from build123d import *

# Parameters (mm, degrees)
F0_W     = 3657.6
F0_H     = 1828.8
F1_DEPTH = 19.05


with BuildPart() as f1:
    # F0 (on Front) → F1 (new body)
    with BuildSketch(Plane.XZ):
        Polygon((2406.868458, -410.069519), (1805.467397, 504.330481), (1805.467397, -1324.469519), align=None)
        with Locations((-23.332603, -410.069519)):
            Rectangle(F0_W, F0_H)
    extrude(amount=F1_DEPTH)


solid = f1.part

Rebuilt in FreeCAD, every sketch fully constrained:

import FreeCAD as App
import Part
import Sketcher
Q = App.Units.Quantity

doc = App.newDocument("Part")
body = doc.addObject("PartDesign::Body", "Body")

sketch1 = doc.addObject("Sketcher::SketchObject", "Sketch")
body.addObject(sketch1)
sketch1.AttachmentSupport = (doc.XZ_Plane, [""])
sketch1.MapMode = "FlatFace"
sketch1.addGeometry(Part.LineSegment(App.Vector(2407, -410, 0), App.Vector(1805, 504, 0)), False)
sketch1.addGeometry(Part.LineSegment(App.Vector(1805, 504, 0), App.Vector(-1852, 504, 0)), False)
sketch1.addGeometry(Part.LineSegment(App.Vector(-1852, 504, 0), App.Vector(-1852, -1324, 0)), False)
sketch1.addGeometry(Part.LineSegment(App.Vector(-1852, -1324, 0), App.Vector(1805, -1324, 0)), False)
sketch1.addGeometry(Part.LineSegment(App.Vector(1805, -1324, 0), App.Vector(2407, -410, 0)), False)
sketch1.addConstraint(Sketcher.Constraint("Coincident", 0, 2, 1, 1))
sketch1.addConstraint(Sketcher.Constraint("Coincident", 1, 2, 2, 1))
sketch1.addConstraint(Sketcher.Constraint("Coincident", 2, 2, 3, 1))
sketch1.addConstraint(Sketcher.Constraint("Coincident", 3, 2, 4, 1))
sketch1.addConstraint(Sketcher.Constraint("Coincident", 4, 2, 0, 1))
sketch1.addConstraint(Sketcher.Constraint("Horizontal", 1))
sketch1.addConstraint(Sketcher.Constraint("Vertical", 2))
sketch1.addConstraint(Sketcher.Constraint("Horizontal", 3))
sketch1.addConstraint(Sketcher.Constraint("Vertical", 0, 2, 3, 2))
sketch1.addConstraint(Sketcher.Constraint("Equal", 0, 4))
sketch1.addConstraint(Sketcher.Constraint("DistanceX", 1, 2, 1, 1, Q("144 in")))
sketch1.addConstraint(Sketcher.Constraint("DistanceY", 2, 2, 2, 1, Q("72 in")))
sketch1.addConstraint(Sketcher.Constraint("DistanceY", -1, 1, 0, 2, Q("504.330481 mm")))
sketch1.addConstraint(Sketcher.Constraint("DistanceX", 3, 2, 4, 2, Q("601.401061 mm")))
sketch1.addConstraint(Sketcher.Constraint("DistanceX", -1, 1, 0, 2, Q("1805.467397 mm")))
pad1 = doc.addObject("PartDesign::Pad", "Pad")
body.addObject(pad1)
pad1.Profile = sketch1
pad1.Length = Q("0.75 in")

doc.recompute()
